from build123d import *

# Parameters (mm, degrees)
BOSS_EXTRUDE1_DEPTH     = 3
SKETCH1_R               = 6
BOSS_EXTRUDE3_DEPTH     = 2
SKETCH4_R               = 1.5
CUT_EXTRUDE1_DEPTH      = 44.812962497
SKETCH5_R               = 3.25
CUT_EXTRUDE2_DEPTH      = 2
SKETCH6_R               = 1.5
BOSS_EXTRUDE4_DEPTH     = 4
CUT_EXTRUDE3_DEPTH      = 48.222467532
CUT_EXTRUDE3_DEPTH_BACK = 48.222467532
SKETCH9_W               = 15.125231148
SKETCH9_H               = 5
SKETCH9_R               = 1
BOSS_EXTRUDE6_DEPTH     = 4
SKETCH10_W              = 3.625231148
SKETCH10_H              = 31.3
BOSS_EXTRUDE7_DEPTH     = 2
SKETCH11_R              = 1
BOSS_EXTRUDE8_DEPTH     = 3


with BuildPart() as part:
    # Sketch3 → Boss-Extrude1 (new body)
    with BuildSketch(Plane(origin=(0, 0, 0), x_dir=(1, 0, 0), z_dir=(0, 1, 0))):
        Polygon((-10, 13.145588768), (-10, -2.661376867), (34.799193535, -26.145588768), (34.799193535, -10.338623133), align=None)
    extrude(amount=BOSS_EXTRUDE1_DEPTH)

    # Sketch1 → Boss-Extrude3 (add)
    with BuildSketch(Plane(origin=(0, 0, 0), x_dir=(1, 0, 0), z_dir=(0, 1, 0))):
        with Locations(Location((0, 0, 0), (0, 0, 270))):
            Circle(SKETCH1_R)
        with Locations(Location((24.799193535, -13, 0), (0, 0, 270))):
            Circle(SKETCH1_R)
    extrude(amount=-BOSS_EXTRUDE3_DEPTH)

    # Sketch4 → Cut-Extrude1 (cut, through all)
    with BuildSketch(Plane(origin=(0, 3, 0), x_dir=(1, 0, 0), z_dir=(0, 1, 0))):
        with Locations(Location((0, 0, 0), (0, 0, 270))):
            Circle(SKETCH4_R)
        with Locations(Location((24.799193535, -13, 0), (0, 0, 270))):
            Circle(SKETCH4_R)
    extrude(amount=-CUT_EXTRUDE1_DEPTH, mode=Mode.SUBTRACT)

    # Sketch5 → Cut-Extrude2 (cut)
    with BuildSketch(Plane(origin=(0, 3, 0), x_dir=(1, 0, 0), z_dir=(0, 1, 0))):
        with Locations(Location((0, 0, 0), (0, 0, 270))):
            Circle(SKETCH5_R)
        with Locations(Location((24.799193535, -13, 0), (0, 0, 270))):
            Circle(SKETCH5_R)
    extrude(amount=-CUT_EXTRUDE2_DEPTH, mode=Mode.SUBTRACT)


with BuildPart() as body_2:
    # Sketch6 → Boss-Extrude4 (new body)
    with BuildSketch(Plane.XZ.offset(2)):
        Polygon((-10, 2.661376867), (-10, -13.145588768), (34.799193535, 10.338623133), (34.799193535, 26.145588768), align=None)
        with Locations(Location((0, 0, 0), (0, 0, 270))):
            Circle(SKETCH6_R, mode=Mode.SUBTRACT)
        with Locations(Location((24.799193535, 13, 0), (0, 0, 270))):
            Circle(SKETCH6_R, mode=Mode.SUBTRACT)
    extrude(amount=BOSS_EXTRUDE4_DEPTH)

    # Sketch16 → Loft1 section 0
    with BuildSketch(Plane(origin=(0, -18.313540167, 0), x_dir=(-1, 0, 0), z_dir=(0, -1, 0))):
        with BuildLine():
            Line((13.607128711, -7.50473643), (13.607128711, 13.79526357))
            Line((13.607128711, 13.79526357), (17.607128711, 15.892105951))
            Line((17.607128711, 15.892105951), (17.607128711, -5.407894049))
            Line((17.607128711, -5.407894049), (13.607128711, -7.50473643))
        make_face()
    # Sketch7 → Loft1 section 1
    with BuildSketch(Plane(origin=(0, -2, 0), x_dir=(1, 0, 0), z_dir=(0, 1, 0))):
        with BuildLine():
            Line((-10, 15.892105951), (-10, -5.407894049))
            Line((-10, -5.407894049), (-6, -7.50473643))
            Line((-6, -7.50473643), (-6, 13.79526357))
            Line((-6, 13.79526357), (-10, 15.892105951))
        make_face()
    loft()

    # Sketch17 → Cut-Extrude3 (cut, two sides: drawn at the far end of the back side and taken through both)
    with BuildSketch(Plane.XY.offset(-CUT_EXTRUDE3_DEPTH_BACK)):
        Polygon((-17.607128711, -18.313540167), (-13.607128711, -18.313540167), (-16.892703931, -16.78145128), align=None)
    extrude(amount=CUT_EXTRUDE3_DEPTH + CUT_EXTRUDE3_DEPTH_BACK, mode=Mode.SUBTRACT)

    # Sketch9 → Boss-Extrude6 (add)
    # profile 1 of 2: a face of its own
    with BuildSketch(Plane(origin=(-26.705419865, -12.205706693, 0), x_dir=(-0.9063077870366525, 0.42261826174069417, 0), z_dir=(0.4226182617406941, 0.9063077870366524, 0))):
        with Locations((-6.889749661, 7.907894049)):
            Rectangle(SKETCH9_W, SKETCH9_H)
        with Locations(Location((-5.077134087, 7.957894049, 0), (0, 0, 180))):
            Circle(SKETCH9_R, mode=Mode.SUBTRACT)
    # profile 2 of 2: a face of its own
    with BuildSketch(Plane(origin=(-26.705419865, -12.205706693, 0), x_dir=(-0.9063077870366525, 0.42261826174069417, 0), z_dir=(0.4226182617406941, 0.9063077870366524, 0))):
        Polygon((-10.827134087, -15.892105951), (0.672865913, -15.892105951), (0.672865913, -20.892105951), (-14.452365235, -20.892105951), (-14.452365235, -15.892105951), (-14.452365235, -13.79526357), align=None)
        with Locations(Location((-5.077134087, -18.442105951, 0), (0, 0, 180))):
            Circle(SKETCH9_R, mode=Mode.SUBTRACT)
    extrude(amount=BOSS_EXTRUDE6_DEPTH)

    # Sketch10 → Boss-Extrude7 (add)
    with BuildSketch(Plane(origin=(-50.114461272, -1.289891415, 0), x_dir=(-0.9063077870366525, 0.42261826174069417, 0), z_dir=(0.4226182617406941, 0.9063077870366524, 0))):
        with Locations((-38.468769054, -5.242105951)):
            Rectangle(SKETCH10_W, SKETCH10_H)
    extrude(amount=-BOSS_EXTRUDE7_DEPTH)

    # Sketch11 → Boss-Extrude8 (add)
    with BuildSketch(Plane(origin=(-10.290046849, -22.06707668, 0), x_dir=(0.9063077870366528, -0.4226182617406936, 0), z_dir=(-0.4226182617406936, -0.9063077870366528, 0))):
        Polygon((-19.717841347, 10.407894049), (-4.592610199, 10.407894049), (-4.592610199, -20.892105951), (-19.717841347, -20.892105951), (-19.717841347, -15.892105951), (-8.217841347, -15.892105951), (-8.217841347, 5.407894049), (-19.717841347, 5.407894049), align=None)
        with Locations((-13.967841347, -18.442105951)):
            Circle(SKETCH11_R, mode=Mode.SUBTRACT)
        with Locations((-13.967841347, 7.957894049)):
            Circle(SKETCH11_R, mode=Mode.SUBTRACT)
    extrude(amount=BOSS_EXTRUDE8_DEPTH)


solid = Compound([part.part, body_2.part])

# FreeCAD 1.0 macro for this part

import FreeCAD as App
import Part
import Sketcher
from FreeCAD import Vector
Q = App.Units.Quantity

doc = App.newDocument("Part")
body = doc.addObject("PartDesign::Body", "Body")

# Sketch on XZ plane
sketch1 = body.newObject("Sketcher::SketchObject", "Sketch")
sketch1.AttachmentSupport = (doc.getObject("XZ_Plane"), [""])
sketch1.MapMode = "FlatFace"
sketch1.addGeometry(Part.LineSegment(Vector(-10, -13, 0), Vector(-10, 3, 0)), False)
sketch1.addGeometry(Part.LineSegment(Vector(-10, 3, 0), Vector(35, 26, 0)), False)
sketch1.addGeometry(Part.LineSegment(Vector(35, 26, 0), Vector(35, 10, 0)), False)
sketch1.addGeometry(Part.LineSegment(Vector(35, 10, 0), Vector(-10, -13, 0)), False)
sketch1.addConstraint(Sketcher.Constraint("Coincident", 0, 2, 1, 1))
sketch1.addConstraint(Sketcher.Constraint("Coincident", 1, 2, 2, 1))
sketch1.addConstraint(Sketcher.Constraint("Coincident", 2, 2, 3, 1))
sketch1.addConstraint(Sketcher.Constraint("Coincident", 3, 2, 0, 1))
sketch1.addConstraint(Sketcher.Constraint("Vertical", 0))
sketch1.addConstraint(Sketcher.Constraint("Vertical", 2))
sketch1.addConstraint(Sketcher.Constraint("Parallel", 1, 3))
sketch1.addConstraint(Sketcher.Constraint("DistanceX", 0, 2, -1, 1, 10.0))
sketch1.addConstraint(Sketcher.Constraint("Distance", 1, 50.581379))
sketch1.addConstraint(Sketcher.Constraint("DistanceY", 0, 1, 0, 2, 15.806966))
sketch1.addConstraint(Sketcher.Constraint("DistanceY", -1, 1, 1, 2, 26.145589))
sketch1.addConstraint(Sketcher.Constraint("DistanceY", 3, 2, -1, 1, 13.145589))
pad1 = body.newObject("PartDesign::Pad", "Pad")
pad1.Profile = sketch1
pad1.Length = 3
pad1.Reversed = True

# Sketch on XZ plane
sketch2 = body.newObject("Sketcher::SketchObject", "Sketch001")
sketch2.AttachmentSupport = (doc.getObject("XZ_Plane"), [""])
sketch2.MapMode = "FlatFace"
sketch2.addGeometry(Part.Circle(Vector(0, 0, 0), Vector(0, 0, 1), 6), False)
sketch2.addGeometry(Part.Circle(Vector(25, 13, 0), Vector(0, 0, 1), 6), False)
sketch2.addConstraint(Sketcher.Constraint("Coincident", 0, 3, -1, 1))
sketch2.addConstraint(Sketcher.Constraint("Equal", 0, 1))
sketch2.addConstraint(Sketcher.Constraint("Diameter", 0, 12.0))
sketch2.addConstraint(Sketcher.Constraint("DistanceY", -1, 1, 1, 3, 13.0))
sketch2.addConstraint(Sketcher.Constraint("DistanceX", -1, 1, 1, 3, 24.799194))
pad2 = body.newObject("PartDesign::Pad", "Pad001")
pad2.Profile = sketch2
pad2.Length = 2

# Sketch on XZ plane
sketch3 = body.newObject("Sketcher::SketchObject", "Sketch002")
sketch3.AttachmentSupport = (doc.getObject("XZ_Plane"), [""])
sketch3.MapMode = "FlatFace"
sketch3.AttachmentOffset = App.Placement(Vector(0, 0, -3), App.Rotation())
sketch3.addGeometry(Part.Circle(Vector(0, 0, 0), Vector(0, 0, 1), 1.5), False)
sketch3.addGeometry(Part.Circle(Vector(24.8, 13, 0), Vector(0, 0, 1), 1.5), False)
sketch3.addConstraint(Sketcher.Constraint("Coincident", 0, 3, -1, 1))
sketch3.addConstraint(Sketcher.Constraint("Equal", 0, 1))
sketch3.addConstraint(Sketcher.Constraint("Diameter", 0, 3.0))
sketch3.addConstraint(Sketcher.Constraint("DistanceY", -1, 1, 1, 3, 13.0))
sketch3.addConstraint(Sketcher.Constraint("DistanceX", -1, 1, 1, 3, 24.799194))
pocket1 = body.newObject("PartDesign::Pocket", "Pocket")
pocket1.Profile = sketch3
pocket1.Type = "ThroughAll"
pocket1.Reversed = True

# Sketch on XZ plane
sketch4 = body.newObject("Sketcher::SketchObject", "Sketch003")
sketch4.AttachmentSupport = (doc.getObject("XZ_Plane"), [""])
sketch4.MapMode = "FlatFace"
sketch4.AttachmentOffset = App.Placement(Vector(0, 0, -3), App.Rotation())
sketch4.addGeometry(Part.Circle(Vector(0, 0, 0), Vector(0, 0, 1), 3.2), False)
sketch4.addGeometry(Part.Circle(Vector(24.8, 13, 0), Vector(0, 0, 1), 3.2), False)
sketch4.addConstraint(Sketcher.Constraint("Coincident", 0, 3, -1, 1))
sketch4.addConstraint(Sketcher.Constraint("Equal", 0, 1))
sketch4.addConstraint(Sketcher.Constraint("Diameter", 0, 6.5))
sketch4.addConstraint(Sketcher.Constraint("DistanceY", -1, 1, 1, 3, 13.0))
sketch4.addConstraint(Sketcher.Constraint("DistanceX", -1, 1, 1, 3, 24.799194))
pocket2 = body.newObject("PartDesign::Pocket", "Pocket001")
pocket2.Profile = sketch4
pocket2.Length = 2
pocket2.Reversed = True
body2 = doc.addObject("PartDesign::Body", "Body001")

# Sketch on XZ plane
sketch5 = body2.newObject("Sketcher::SketchObject", "Sketch004")
sketch5.AttachmentSupport = (doc.getObject("XZ_Plane001"), [""])
sketch5.MapMode = "FlatFace"
sketch5.AttachmentOffset = App.Placement(Vector(0, 0, 2), App.Rotation())
sketch5.addGeometry(Part.LineSegment(Vector(-10, 2.7, 0), Vector(-10, -13.1, 0)), False)
sketch5.addGeometry(Part.LineSegment(Vector(-10, -13.1, 0), Vector(34.8, 10.3, 0)), False)
sketch5.addGeometry(Part.LineSegment(Vector(34.8, 10.3, 0), Vector(34.8, 26.1, 0)), False)
sketch5.addGeometry(Part.LineSegment(Vector(34.8, 26.1, 0), Vector(-10, 2.7, 0)), False)
sketch5.addGeometry(Part.Circle(Vector(0, 0, 0), Vector(0, 0, 1), 1.5), False)
sketch5.addGeometry(Part.Circle(Vector(24.8, 13, 0), Vector(0, 0, 1), 1.5), False)
sketch5.addConstraint(Sketcher.Constraint("Coincident", 0, 2, 1, 1))
sketch5.addConstraint(Sketcher.Constraint("Coincident", 1, 2, 2, 1))
sketch5.addConstraint(Sketcher.Constraint("Coincident", 2, 2, 3, 1))
sketch5.addConstraint(Sketcher.Constraint("Coincident", 3, 2, 0, 1))
sketch5.addConstraint(Sketcher.Constraint("Vertical", 0))
sketch5.addConstraint(Sketcher.Constraint("Vertical", 2))
sketch5.addConstraint(Sketcher.Constraint("Coincident", 4, 3, -1, 1))
sketch5.addConstraint(Sketcher.Constraint("Equal", 4, 5))
sketch5.addConstraint(Sketcher.Constraint("Parallel", 1, 3))
sketch5.addConstraint(Sketcher.Constraint("Diameter", 4, 3.0))
sketch5.addConstraint(Sketcher.Constraint("DistanceY", -1, 1, 5, 3, 13.0))
sketch5.addConstraint(Sketcher.Constraint("DistanceX", 0, 2, -1, 1, 10.0))
sketch5.addConstraint(Sketcher.Constraint("DistanceX", 5, 3, 1, 2, 10.0))
sketch5.addConstraint(Sketcher.Constraint("Distance", 1, 50.581379))
sketch5.addConstraint(Sketcher.Constraint("DistanceY", 0, 2, 0, 1, 15.806966))
sketch5.addConstraint(Sketcher.Constraint("DistanceY", 0, 2, -1, 1, 13.145589))
sketch5.addConstraint(Sketcher.Constraint("DistanceY", -1, 1, 2, 2, 26.145589))
pad3 = body2.newObject("PartDesign::Pad", "Pad002")
pad3.Profile = sketch5
pad3.Length = 4

# Sketch on XZ plane
sketch6 = body2.newObject("Sketcher::SketchObject", "Sketch005")
sketch6.AttachmentSupport = (doc.getObject("XZ_Plane001"), [""])
sketch6.MapMode = "FlatFace"
sketch6.AttachmentOffset = App.Placement(Vector(0, 0, 18.31354), App.Rotation())
sketch6.addGeometry(Part.LineSegment(Vector(-13.6, -13.8, 0), Vector(-13.6, 7.5, 0)), False)
sketch6.addGeometry(Part.LineSegment(Vector(-13.6, 7.5, 0), Vector(-17.6, 5.4, 0)), False)
sketch6.addGeometry(Part.LineSegment(Vector(-17.6, 5.4, 0), Vector(-17.6, -15.9, 0)), False)
sketch6.addGeometry(Part.LineSegment(Vector(-17.6, -15.9, 0), Vector(-13.6, -13.8, 0)), False)
sketch6.addConstraint(Sketcher.Constraint("Coincident", 0, 2, 1, 1))
sketch6.addConstraint(Sketcher.Constraint("Coincident", 1, 2, 2, 1))
sketch6.addConstraint(Sketcher.Constraint("Coincident", 2, 2, 3, 1))
sketch6.addConstraint(Sketcher.Constraint("Coincident", 3, 2, 0, 1))
sketch6.addConstraint(Sketcher.Constraint("Vertical", 0))
sketch6.addConstraint(Sketcher.Constraint("Vertical", 2))
sketch6.addConstraint(Sketcher.Constraint("Parallel", 1, 3))
sketch6.addConstraint(Sketcher.Constraint("DistanceY", 0, 1, 0, 2, 21.3))
sketch6.addConstraint(Sketcher.Constraint("DistanceX", 1, 2, 0, 2, 4.0))
sketch6.addConstraint(Sketcher.Constraint("DistanceX", 0, 2, -1, 1, 13.607129))
sketch6.addConstraint(Sketcher.Constraint("Distance", 1, 4.516276))
sketch6.addConstraint(Sketcher.Constraint("DistanceY", -1, 1, 0, 2, 7.504736))

# Sketch on XZ plane
sketch7 = body2.newObject("Sketcher::SketchObject", "Sketch006")
sketch7.AttachmentSupport = (doc.getObject("XZ_Plane001"), [""])
sketch7.MapMode = "FlatFace"
sketch7.AttachmentOffset = App.Placement(Vector(0, 0, 2), App.Rotation())
sketch7.addGeometry(Part.LineSegment(Vector(-10, -15.9, 0), Vector(-10, 5.4, 0)), False)
sketch7.addGeometry(Part.LineSegment(Vector(-10, 5.4, 0), Vector(-6, 7.5, 0)), False)
sketch7.addGeometry(Part.LineSegment(Vector(-6, 7.5, 0), Vector(-6, -13.8, 0)), False)
sketch7.addGeometry(Part.LineSegment(Vector(-6, -13.8, 0), Vector(-10, -15.9, 0)), False)
sketch7.addConstraint(Sketcher.Constraint("Coincident", 0, 2, 1, 1))
sketch7.addConstraint(Sketcher.Constraint("Coincident", 1, 2, 2, 1))
sketch7.addConstraint(Sketcher.Constraint("Coincident", 2, 2, 3, 1))
sketch7.addConstraint(Sketcher.Constraint("Coincident", 3, 2, 0, 1))
sketch7.addConstraint(Sketcher.Constraint("Vertical", 0))
sketch7.addConstraint(Sketcher.Constraint("Vertical", 2))
sketch7.addConstraint(Sketcher.Constraint("Parallel", 1, 3))
sketch7.addConstraint(Sketcher.Constraint("DistanceY", 0, 1, 0, 2, 21.3))
sketch7.addConstraint(Sketcher.Constraint("DistanceX", 0, 2, -1, 1, 10.0))
sketch7.addConstraint(Sketcher.Constraint("DistanceX", 1, 2, -1, 1, 6.0))
sketch7.addConstraint(Sketcher.Constraint("Distance", 1, 4.516276))
sketch7.addConstraint(Sketcher.Constraint("DistanceY", -1, 1, 0, 2, 5.407894))

additiveloft = body2.newObject("PartDesign::AdditiveLoft", "AdditiveLoft")
additiveloft.Profile = sketch6
additiveloft.Sections = [sketch7]

# Sketch on XY plane
sketch8 = body2.newObject("Sketcher::SketchObject", "Sketch007")
sketch8.AttachmentSupport = (doc.getObject("XY_Plane001"), [""])
sketch8.MapMode = "FlatFace"
sketch8.addGeometry(Part.LineSegment(Vector(-17.6, -18.3, 0), Vector(-13.6, -18.3, 0)), False)
sketch8.addGeometry(Part.LineSegment(Vector(-13.6, -18.3, 0), Vector(-16.9, -16.8, 0)), False)
sketch8.addGeometry(Part.LineSegment(Vector(-16.9, -16.8, 0), Vector(-17.6, -18.3, 0)), False)
sketch8.addConstraint(Sketcher.Constraint("Coincident", 0, 2, 1, 1))
sketch8.addConstraint(Sketcher.Constraint("Coincident", 1, 2, 2, 1))
sketch8.addConstraint(Sketcher.Constraint("Coincident", 2, 2, 0, 1))
sketch8.addConstraint(Sketcher.Constraint("Horizontal", 0))
sketch8.addConstraint(Sketcher.Constraint("Perpendicular", 1, 2))
sketch8.addConstraint(Sketcher.Constraint("DistanceX", 0, 1, 0, 2, 4.0))
sketch8.addConstraint(Sketcher.Constraint("Angle", 1, Q("155 deg")))
sketch8.addConstraint(Sketcher.Constraint("DistanceX", 0, 2, -1, 1, 13.607129))
sketch8.addConstraint(Sketcher.Constraint("DistanceY", 0, 2, -1, 1, 18.31354))
pocket3 = body2.newObject("PartDesign::Pocket", "Pocket002")
pocket3.Profile = sketch8
pocket3.Type = "ThroughAll"
pocket3.Midplane = True

# Sketch on an angled plane
sketch9 = body2.newObject("Sketcher::SketchObject", "Sketch008")
sketch9.Placement = App.Placement(Vector(-26.70542, -12.205707, 0), App.Rotation(Vector(-0.906307787, 0.422618262, 0), Vector(0, 0, 1), Vector(0.422618262, 0.906307787, 0), "ZXY"))
sketch9.addGeometry(Part.LineSegment(Vector(-14.5, 10.4, 0), Vector(-14.5, 5.4, 0)), False)
sketch9.addGeometry(Part.LineSegment(Vector(-14.5, 5.4, 0), Vector(0.7, 5.4, 0)), False)
sketch9.addGeometry(Part.LineSegment(Vector(0.7, 5.4, 0), Vector(0.7, 10.4, 0)), False)
sketch9.addGeometry(Part.LineSegment(Vector(0.7, 10.4, 0), Vector(-14.5, 10.4, 0)), False)
sketch9.addGeometry(Part.Circle(Vector(-5.1, 8, 0), Vector(0, 0, 1), 1), False)
sketch9.addGeometry(Part.LineSegment(Vector(0.7, -15.9, 0), Vector(-10.8, -15.9, 0)), False)
sketch9.addGeometry(Part.LineSegment(Vector(-10.8, -15.9, 0), Vector(-14.5, -13.8, 0)), False)
sketch9.addGeometry(Part.LineSegment(Vector(-14.5, -13.8, 0), Vector(-14.5, -20.9, 0)), False)
sketch9.addGeometry(Part.LineSegment(Vector(-14.5, -20.9, 0), Vector(0.7, -20.9, 0)), False)
sketch9.addGeometry(Part.LineSegment(Vector(0.7, -20.9, 0), Vector(0.7, -15.9, 0)), False)
sketch9.addGeometry(Part.Circle(Vector(-5.1, -18.4, 0), Vector(0, 0, 1), 1), False)
sketch9.addConstraint(Sketcher.Constraint("Coincident", 0, 2, 1, 1))
sketch9.addConstraint(Sketcher.Constraint("Coincident", 1, 2, 2, 1))
sketch9.addConstraint(Sketcher.Constraint("Coincident", 2, 2, 3, 1))
sketch9.addConstraint(Sketcher.Constraint("Coincident", 3, 2, 0, 1))
sketch9.addConstraint(Sketcher.Constraint("Coincident", 5, 2, 6, 1))
sketch9.addConstraint(Sketcher.Constraint("Coincident", 6, 2, 7, 1))
sketch9.addConstraint(Sketcher.Constraint("Coincident", 7, 2, 8, 1))
sketch9.addConstraint(Sketcher.Constraint("Coincident", 8, 2, 9, 1))
sketch9.addConstraint(Sketcher.Constraint("Coincident", 9, 2, 5, 1))
sketch9.addConstraint(Sketcher.Constraint("Vertical", 0))
sketch9.addConstraint(Sketcher.Constraint("Horizontal", 1))
sketch9.addConstraint(Sketcher.Constraint("Vertical", 2))
sketch9.addConstraint(Sketcher.Constraint("Horizontal", 3))
sketch9.addConstraint(Sketcher.Constraint("Horizontal", 5))
sketch9.addConstraint(Sketcher.Constraint("Vertical", 7))
sketch9.addConstraint(Sketcher.Constraint("Horizontal", 8))
sketch9.addConstraint(Sketcher.Constraint("Vertical", 9))
sketch9.addConstraint(Sketcher.Constraint("Equal", 4, 10))
sketch9.addConstraint(Sketcher.Constraint("Vertical", 4, 3, 10, 3))
sketch9.addConstraint(Sketcher.Constraint("Vertical", 3, 2, 6, 2))
sketch9.addConstraint(Sketcher.Constraint("Vertical", 2, 2, 8, 2))
sketch9.addConstraint(Sketcher.Constraint("Equal", 2, 9))
sketch9.addConstraint(Sketcher.Constraint("Diameter", 4, 2.0))
sketch9.addConstraint(Sketcher.Constraint("DistanceY", 0, 2, 0, 1, 5.0))
sketch9.addConstraint(Sketcher.Constraint("DistanceX", 5, 2, 5, 1, 11.5))
sketch9.addConstraint(Sketcher.Constraint("DistanceY", 10, 3, 4, 3, 26.4))
sketch9.addConstraint(Sketcher.Constraint("DistanceY", 5, 2, 0, 2, 21.3))
sketch9.addConstraint(Sketcher.Constraint("DistanceY", 0, 2, 4, 3, 2.55))
sketch9.addConstraint(Sketcher.Constraint("DistanceX", 4, 3, 1, 2, 5.75))
sketch9.addConstraint(Sketcher.Constraint("DistanceX", 1, 1, 1, 2, 15.125231))
sketch9.addConstraint(Sketcher.Constraint("DistanceY", 7, 2, 7, 1, 7.096842))
sketch9.addConstraint(Sketcher.Constraint("DistanceX", 4, 3, -1, 1, 5.077134))
sketch9.addConstraint(Sketcher.Constraint("DistanceY", -1, 1, 4, 3, 7.957894))
pad4 = body2.newObject("PartDesign::Pad", "Pad003")
pad4.Profile = sketch9
pad4.Length = 4

# Sketch on an angled plane
sketch10 = body2.newObject("Sketcher::SketchObject", "Sketch009")
sketch10.Placement = App.Placement(Vector(-50.114461, -1.289891, 0), App.Rotation(Vector(-0.906307787, 0.422618262, 0), Vector(0, 0, 1), Vector(0.422618262, 0.906307787, 0), "ZXY"))
sketch10.addGeometry(Part.LineSegment(Vector(-40.3, 10.4, 0), Vector(-40.3, -20.9, 0)), False)
sketch10.addGeometry(Part.LineSegment(Vector(-40.3, -20.9, 0), Vector(-36.7, -20.9, 0)), False)
sketch10.addGeometry(Part.LineSegment(Vector(-36.7, -20.9, 0), Vector(-36.7, 10.4, 0)), False)
sketch10.addGeometry(Part.LineSegment(Vector(-36.7, 10.4, 0), Vector(-40.3, 10.4, 0)), False)
sketch10.addConstraint(Sketcher.Constraint("Coincident", 0, 2, 1, 1))
sketch10.addConstraint(Sketcher.Constraint("Coincident", 1, 2, 2, 1))
sketch10.addConstraint(Sketcher.Constraint("Coincident", 2, 2, 3, 1))
sketch10.addConstraint(Sketcher.Constraint("Coincident", 3, 2, 0, 1))
sketch10.addConstraint(Sketcher.Constraint("Vertical", 0))
sketch10.addConstraint(Sketcher.Constraint("Horizontal", 1))
sketch10.addConstraint(Sketcher.Constraint("Vertical", 2))
sketch10.addConstraint(Sketcher.Constraint("Horizontal", 3))
sketch10.addConstraint(Sketcher.Constraint("DistanceY", 0, 2, 0, 1, 31.3))
sketch10.addConstraint(Sketcher.Constraint("DistanceX", 1, 1, 1, 2, 3.625231))
sketch10.addConstraint(Sketcher.Constraint("DistanceX", 0, 2, -1, 1, 40.281385))
sketch10.addConstraint(Sketcher.Constraint("DistanceY", 0, 2, -1, 1, 20.892106))
pad5 = body2.newObject("PartDesign::Pad", "Pad004")
pad5.Profile = sketch10
pad5.Length = 2
pad5.Reversed = True

# Sketch on an angled plane
sketch11 = body2.newObject("Sketcher::SketchObject", "Sketch010")
sketch11.Placement = App.Placement(Vector(-10.290047, -22.067077, 0), App.Rotation(Vector(0.906307787, -0.422618262, 0), Vector(0, 0, 1), Vector(-0.422618262, -0.906307787, 0), "ZXY"))
sketch11.addGeometry(Part.LineSegment(Vector(-4.6, 10.4, 0), Vector(-19.7, 10.4, 0)), False)
sketch11.addGeometry(Part.LineSegment(Vector(-19.7, 10.4, 0), Vector(-19.7, 5.4, 0)), False)
sketch11.addGeometry(Part.LineSegment(Vector(-19.7, 5.4, 0), Vector(-8.2, 5.4, 0)), False)
sketch11.addGeometry(Part.LineSegment(Vector(-8.2, 5.4, 0), Vector(-8.2, -15.9, 0)), False)
sketch11.addGeometry(Part.LineSegment(Vector(-8.2, -15.9, 0), Vector(-19.7, -15.9, 0)), False)
sketch11.addGeometry(Part.LineSegment(Vector(-19.7, -15.9, 0), Vector(-19.7, -20.9, 0)), False)
sketch11.addGeometry(Part.LineSegment(Vector(-19.7, -20.9, 0), Vector(-4.6, -20.9, 0)), False)
sketch11.addGeometry(Part.LineSegment(Vector(-4.6, -20.9, 0), Vector(-4.6, 10.4, 0)), False)
sketch11.addGeometry(Part.Circle(Vector(-14, -18.4, 0), Vector(0, 0, 1), 1), False)
sketch11.addGeometry(Part.Circle(Vector(-14, 8, 0), Vector(0, 0, 1), 1), False)
sketch11.addConstraint(Sketcher.Constraint("Coincident", 0, 2, 1, 1))
sketch11.addConstraint(Sketcher.Constraint("Coincident", 1, 2, 2, 1))
sketch11.addConstraint(Sketcher.Constraint("Coincident", 2, 2, 3, 1))
sketch11.addConstraint(Sketcher.Constraint("Coincident", 3, 2, 4, 1))
sketch11.addConstraint(Sketcher.Constraint("Coincident", 4, 2, 5, 1))
sketch11.addConstraint(Sketcher.Constraint("Coincident", 5, 2, 6, 1))
sketch11.addConstraint(Sketcher.Constraint("Coincident", 6, 2, 7, 1))
sketch11.addConstraint(Sketcher.Constraint("Coincident", 7, 2, 0, 1))
sketch11.addConstraint(Sketcher.Constraint("Horizontal", 0))
sketch11.addConstraint(Sketcher.Constraint("Vertical", 1))
sketch11.addConstraint(Sketcher.Constraint("Horizontal", 2))
sketch11.addConstraint(Sketcher.Constraint("Vertical", 3))
sketch11.addConstraint(Sketcher.Constraint("Horizontal", 4))
sketch11.addConstraint(Sketcher.Constraint("Vertical", 5))
sketch11.addConstraint(Sketcher.Constraint("Horizontal", 6))
sketch11.addConstraint(Sketcher.Constraint("Vertical", 7))
sketch11.addConstraint(Sketcher.Constraint("Equal", 8, 9))
sketch11.addConstraint(Sketcher.Constraint("Vertical", 8, 3, 9, 3))
sketch11.addConstraint(Sketcher.Constraint("Vertical", 1, 2, 4, 2))
sketch11.addConstraint(Sketcher.Constraint("Equal", 1, 5))
sketch11.addConstraint(Sketcher.Constraint("Diameter", 8, 2.0))
sketch11.addConstraint(Sketcher.Constraint("DistanceY", 1, 2, 1, 1, 5.0))
sketch11.addConstraint(Sketcher.Constraint("DistanceX", 2, 1, 2, 2, 11.5))
sketch11.addConstraint(Sketcher.Constraint("DistanceY", 3, 2, 3, 1, 21.3))
sketch11.addConstraint(Sketcher.Constraint("DistanceY", 8, 3, 9, 3, 26.4))
sketch11.addConstraint(Sketcher.Constraint("DistanceX", 0, 2, 9, 3, 5.75))
sketch11.addConstraint(Sketcher.Constraint("DistanceY", 9, 3, 0, 2, 2.45))
sketch11.addConstraint(Sketcher.Constraint("DistanceX", 0, 2, 0, 1, 15.125231))
sketch11.addConstraint(Sketcher.Constraint("DistanceX", 8, 3, -1, 1, 13.967841))
sketch11.addConstraint(Sketcher.Constraint("DistanceY", 8, 3, -1, 1, 18.442106))
pad6 = body2.newObject("PartDesign::Pad", "Pad005")
pad6.Profile = sketch11
pad6.Length = 3

doc.recompute()
